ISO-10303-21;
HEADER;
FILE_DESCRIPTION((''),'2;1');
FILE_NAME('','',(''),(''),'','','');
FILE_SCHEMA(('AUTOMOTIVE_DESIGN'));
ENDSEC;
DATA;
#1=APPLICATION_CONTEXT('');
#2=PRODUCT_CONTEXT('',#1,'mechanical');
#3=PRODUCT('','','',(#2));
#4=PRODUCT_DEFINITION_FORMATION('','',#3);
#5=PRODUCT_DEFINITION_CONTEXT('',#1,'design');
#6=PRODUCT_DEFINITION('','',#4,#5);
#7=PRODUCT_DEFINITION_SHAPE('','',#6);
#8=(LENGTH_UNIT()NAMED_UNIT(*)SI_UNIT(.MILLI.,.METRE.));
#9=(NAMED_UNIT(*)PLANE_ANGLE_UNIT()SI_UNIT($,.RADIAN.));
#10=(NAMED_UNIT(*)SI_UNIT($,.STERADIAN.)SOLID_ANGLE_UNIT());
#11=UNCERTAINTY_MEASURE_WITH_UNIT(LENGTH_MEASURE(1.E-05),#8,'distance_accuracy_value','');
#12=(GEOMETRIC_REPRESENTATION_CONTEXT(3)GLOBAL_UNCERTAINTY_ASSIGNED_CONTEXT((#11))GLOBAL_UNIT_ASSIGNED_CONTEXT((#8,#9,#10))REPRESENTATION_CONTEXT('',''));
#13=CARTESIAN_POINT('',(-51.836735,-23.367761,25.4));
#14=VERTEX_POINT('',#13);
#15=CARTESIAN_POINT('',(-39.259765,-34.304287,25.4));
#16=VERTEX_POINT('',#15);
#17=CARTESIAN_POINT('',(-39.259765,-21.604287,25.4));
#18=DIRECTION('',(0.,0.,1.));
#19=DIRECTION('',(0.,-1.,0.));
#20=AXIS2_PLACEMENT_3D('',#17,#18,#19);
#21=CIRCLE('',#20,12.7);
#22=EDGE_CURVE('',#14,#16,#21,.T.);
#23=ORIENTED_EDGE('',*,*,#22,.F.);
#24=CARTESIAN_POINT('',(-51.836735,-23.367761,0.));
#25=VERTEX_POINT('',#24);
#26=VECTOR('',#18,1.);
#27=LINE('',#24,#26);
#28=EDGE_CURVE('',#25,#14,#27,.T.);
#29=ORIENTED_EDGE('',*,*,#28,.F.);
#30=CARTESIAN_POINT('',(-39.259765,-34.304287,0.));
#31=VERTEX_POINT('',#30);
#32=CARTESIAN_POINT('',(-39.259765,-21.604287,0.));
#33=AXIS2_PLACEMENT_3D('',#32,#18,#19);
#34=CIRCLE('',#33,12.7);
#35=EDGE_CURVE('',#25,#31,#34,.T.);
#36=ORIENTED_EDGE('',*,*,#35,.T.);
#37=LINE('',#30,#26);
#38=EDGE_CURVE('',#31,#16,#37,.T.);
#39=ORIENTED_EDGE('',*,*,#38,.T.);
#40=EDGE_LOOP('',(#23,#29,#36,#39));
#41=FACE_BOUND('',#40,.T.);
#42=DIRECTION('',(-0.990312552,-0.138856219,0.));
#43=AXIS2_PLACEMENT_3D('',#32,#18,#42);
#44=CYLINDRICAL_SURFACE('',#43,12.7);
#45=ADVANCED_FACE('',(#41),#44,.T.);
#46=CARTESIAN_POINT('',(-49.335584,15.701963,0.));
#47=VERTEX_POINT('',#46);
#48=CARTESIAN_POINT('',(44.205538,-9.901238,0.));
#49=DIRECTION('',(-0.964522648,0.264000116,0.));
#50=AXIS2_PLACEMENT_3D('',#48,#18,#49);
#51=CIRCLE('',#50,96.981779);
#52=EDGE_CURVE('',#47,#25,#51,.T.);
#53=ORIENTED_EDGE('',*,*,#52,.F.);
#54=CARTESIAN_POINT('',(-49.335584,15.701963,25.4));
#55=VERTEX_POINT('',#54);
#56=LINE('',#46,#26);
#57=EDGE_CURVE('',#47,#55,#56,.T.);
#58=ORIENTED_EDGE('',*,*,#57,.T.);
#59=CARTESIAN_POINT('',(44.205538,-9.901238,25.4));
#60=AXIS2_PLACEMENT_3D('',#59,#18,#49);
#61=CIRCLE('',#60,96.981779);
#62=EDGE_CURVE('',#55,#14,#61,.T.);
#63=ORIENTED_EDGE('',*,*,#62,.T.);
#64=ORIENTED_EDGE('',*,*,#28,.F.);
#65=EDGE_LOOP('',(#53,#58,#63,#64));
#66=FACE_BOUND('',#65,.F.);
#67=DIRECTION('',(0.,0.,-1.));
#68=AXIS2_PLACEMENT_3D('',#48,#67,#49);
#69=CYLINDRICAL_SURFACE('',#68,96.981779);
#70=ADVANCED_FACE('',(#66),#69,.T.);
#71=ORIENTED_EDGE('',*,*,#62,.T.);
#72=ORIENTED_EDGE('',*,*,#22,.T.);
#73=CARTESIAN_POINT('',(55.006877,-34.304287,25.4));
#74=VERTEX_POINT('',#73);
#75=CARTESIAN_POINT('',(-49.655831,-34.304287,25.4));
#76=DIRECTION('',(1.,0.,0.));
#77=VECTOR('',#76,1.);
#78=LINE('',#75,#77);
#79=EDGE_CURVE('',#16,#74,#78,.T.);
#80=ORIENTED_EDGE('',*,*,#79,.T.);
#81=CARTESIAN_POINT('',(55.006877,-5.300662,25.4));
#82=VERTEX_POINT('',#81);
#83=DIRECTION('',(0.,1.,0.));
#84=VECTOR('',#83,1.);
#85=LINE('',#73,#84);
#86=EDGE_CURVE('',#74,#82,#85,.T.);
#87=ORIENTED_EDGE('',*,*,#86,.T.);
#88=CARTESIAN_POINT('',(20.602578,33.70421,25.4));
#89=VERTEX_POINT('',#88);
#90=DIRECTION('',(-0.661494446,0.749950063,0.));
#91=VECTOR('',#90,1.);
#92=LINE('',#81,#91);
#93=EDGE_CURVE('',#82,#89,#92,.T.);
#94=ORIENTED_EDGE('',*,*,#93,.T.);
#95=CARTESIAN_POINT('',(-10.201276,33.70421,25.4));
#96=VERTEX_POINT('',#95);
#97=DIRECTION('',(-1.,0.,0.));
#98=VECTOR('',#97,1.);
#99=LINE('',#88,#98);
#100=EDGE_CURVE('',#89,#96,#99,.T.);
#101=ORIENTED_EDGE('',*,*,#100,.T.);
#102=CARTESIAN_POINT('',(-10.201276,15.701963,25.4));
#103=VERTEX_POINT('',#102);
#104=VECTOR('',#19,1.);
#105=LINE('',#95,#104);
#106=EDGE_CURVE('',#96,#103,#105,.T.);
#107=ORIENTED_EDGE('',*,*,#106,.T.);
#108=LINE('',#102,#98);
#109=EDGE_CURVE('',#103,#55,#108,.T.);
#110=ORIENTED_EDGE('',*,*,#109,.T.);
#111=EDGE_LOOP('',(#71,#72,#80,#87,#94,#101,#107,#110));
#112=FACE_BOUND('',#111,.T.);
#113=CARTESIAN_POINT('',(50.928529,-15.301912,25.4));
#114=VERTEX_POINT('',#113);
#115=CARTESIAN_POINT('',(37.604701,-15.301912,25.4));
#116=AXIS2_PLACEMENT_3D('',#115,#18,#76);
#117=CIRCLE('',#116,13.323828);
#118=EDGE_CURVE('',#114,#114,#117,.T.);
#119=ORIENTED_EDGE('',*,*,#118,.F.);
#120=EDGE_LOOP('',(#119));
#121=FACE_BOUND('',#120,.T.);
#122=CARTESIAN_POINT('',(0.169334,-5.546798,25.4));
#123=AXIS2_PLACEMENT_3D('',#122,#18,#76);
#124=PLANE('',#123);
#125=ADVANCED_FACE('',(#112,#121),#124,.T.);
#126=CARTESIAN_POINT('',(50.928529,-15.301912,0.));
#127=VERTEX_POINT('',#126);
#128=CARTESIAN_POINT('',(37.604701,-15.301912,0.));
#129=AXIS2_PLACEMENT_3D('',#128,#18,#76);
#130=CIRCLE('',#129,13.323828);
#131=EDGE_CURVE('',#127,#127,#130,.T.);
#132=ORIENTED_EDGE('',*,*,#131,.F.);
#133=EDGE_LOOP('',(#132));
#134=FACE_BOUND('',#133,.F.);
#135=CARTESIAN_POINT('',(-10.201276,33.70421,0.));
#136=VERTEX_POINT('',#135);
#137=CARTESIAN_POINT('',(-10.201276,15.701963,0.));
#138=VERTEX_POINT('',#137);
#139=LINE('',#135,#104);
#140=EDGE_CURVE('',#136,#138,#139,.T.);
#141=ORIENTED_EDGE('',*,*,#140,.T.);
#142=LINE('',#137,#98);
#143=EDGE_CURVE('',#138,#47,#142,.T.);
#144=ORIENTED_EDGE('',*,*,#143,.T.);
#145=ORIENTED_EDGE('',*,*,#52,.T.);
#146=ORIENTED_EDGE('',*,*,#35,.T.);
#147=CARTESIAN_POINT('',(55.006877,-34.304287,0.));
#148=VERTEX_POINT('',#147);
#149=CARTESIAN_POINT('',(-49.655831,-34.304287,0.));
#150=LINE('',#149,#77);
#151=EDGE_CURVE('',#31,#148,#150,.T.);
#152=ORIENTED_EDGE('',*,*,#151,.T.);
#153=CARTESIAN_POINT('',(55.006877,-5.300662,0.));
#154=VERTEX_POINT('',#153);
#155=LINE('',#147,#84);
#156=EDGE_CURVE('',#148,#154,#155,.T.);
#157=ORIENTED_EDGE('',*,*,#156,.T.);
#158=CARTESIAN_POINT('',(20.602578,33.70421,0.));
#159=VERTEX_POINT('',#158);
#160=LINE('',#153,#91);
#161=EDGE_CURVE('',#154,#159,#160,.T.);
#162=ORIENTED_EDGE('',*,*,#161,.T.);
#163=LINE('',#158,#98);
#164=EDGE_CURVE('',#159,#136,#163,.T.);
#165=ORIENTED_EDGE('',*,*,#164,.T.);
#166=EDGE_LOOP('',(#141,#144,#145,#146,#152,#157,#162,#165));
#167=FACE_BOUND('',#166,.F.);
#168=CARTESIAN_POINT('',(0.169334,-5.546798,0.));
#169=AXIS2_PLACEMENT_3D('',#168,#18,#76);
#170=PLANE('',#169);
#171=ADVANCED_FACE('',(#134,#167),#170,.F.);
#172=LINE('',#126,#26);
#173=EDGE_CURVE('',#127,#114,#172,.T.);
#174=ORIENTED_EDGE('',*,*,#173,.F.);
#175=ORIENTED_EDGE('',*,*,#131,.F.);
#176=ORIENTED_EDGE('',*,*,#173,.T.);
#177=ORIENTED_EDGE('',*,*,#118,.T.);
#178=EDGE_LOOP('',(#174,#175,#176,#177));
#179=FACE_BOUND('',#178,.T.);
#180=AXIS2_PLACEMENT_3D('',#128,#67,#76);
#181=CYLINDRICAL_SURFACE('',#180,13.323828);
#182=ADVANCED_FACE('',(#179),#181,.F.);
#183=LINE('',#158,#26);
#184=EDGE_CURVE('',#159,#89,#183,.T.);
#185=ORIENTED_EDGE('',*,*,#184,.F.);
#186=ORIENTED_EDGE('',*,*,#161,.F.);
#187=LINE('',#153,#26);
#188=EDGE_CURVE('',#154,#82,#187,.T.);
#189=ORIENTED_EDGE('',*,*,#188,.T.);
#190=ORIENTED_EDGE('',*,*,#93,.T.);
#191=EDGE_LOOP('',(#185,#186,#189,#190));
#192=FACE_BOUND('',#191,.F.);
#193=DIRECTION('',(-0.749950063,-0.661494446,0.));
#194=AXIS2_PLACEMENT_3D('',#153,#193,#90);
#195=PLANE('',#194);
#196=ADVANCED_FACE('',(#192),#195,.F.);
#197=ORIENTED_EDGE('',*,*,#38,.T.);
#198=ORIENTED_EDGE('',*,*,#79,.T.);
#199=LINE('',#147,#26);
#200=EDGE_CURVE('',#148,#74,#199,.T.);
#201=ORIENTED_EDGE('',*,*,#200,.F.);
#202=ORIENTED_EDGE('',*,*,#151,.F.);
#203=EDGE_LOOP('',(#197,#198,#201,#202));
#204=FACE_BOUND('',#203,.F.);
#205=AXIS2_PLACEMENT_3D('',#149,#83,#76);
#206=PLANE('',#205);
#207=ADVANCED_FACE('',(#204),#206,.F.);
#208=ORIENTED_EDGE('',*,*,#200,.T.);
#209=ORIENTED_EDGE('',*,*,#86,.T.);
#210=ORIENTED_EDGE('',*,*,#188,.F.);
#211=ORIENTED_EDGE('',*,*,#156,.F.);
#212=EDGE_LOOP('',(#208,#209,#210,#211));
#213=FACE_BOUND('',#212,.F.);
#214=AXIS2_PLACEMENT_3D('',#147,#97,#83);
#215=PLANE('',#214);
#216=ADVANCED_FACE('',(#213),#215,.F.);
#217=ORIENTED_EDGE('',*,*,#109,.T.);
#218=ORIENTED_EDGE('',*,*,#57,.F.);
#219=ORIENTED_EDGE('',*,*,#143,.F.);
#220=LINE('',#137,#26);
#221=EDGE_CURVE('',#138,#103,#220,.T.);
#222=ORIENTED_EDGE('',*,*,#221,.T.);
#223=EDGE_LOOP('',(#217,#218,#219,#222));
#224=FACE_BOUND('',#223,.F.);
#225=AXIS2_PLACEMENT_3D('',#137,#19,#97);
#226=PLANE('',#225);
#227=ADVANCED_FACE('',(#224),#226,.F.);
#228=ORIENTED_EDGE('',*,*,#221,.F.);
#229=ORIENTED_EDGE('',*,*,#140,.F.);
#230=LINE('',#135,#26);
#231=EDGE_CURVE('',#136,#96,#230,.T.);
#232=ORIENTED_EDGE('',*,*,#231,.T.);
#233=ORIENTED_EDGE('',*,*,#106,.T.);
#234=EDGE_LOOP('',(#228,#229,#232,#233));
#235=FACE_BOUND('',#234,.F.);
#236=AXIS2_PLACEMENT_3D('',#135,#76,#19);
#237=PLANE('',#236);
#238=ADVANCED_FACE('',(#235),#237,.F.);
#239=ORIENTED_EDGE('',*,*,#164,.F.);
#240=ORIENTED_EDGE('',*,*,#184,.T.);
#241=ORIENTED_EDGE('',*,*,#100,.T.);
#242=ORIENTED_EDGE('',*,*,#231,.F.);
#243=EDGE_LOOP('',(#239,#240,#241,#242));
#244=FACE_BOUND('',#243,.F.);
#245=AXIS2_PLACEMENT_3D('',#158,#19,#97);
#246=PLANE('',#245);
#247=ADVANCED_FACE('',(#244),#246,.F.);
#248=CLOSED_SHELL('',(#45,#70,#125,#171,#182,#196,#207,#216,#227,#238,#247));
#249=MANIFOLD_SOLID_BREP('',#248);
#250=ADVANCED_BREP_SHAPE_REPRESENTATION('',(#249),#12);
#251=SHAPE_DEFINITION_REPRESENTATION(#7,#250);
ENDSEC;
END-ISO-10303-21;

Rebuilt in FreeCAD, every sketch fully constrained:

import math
import FreeCAD as App
import Part
import Sketcher
from FreeCAD import Vector
Q = App.Units.Quantity


def edges_at(feature, points):
    """Names of the edges that pass closest to the given points."""
    edges = feature.Shape.Edges
    near = lambda p: min(range(len(edges)), key=lambda i: edges[i].distToShape(Part.Vertex(*p))[0])
    return sorted({f"Edge{near(p) + 1}" for p in points})

doc = App.newDocument("Part")
body = doc.addObject("PartDesign::Body", "Body")

sketch1 = body.newObject("Sketcher::SketchObject", "Sketch")
sketch1.AttachmentSupport = (doc.getObject("XY_Plane"), [""])
sketch1.MapMode = "FlatFace"
sketch1.addGeometry([
    Part.LineSegment(Vector(-10, 16, 0), Vector(-49, 16, 0)),
    Part.ArcOfCircle(Part.Circle(Vector(44, -10, 0), Vector(0, 0, 1), 97), math.radians(165), math.radians(195)),
    Part.LineSegment(Vector(-50, -34, 0), Vector(55, -34, 0)),
    Part.LineSegment(Vector(55, -34, 0), Vector(55, -5, 0)),
    Part.LineSegment(Vector(55, -5, 0), Vector(21, 34, 0)),
    Part.LineSegment(Vector(21, 34, 0), Vector(-10, 34, 0)),
    Part.LineSegment(Vector(-10, 34, 0), Vector(-10, 16, 0)),
    Part.Circle(Vector(38, -15, 0), Vector(0, 0, 1), 13),
], False)
sketch1.addConstraint([
    Sketcher.Constraint("Coincident", 0, 2, 1, 1),
    Sketcher.Constraint("Coincident", 1, 2, 2, 1),
    Sketcher.Constraint("Coincident", 2, 2, 3, 1),
    Sketcher.Constraint("Coincident", 3, 2, 4, 1),
    Sketcher.Constraint("Coincident", 4, 2, 5, 1),
    Sketcher.Constraint("Coincident", 5, 2, 6, 1),
    Sketcher.Constraint("Coincident", 6, 2, 0, 1),
    Sketcher.Constraint("Horizontal", 0),
    Sketcher.Constraint("Horizontal", 2),
    Sketcher.Constraint("Vertical", 3),
    Sketcher.Constraint("Horizontal", 5),
    Sketcher.Constraint("Vertical", 6),
    Sketcher.Constraint("Radius", 1, Q("96.981779 mm")),
    Sketcher.Constraint("DistanceY", 1, 3, 0, 2, Q("1.008 in")),
    Sketcher.Constraint("DistanceY", 1, 2, 0, 2, Q("1.96875 in")),
    Sketcher.Constraint("Diameter", 7, Q("26.647656 mm")),
    Sketcher.Constraint("DistanceX", -1, 1, 7, 3, Q("1.4805 in")),
    Sketcher.Constraint("DistanceX", 4, 2, 3, 2, Q("1.3545 in")),
    Sketcher.Constraint("DistanceY", 2, 2, 4, 2, Q("2.6774999 in")),
    Sketcher.Constraint("DistanceX", 2, 1, 2, 2, Q("104.662708 mm")),
    Sketcher.Constraint("Distance", 4, Q("52.009959 mm")),
    Sketcher.Constraint("DistanceX", 0, 2, 0, 1, Q("39.134308 mm")),
    Sketcher.Constraint("DistanceX", 1, 2, -1, 1, Q("49.655831 mm")),
    Sketcher.Constraint("DistanceY", -1, 1, 4, 2, Q("33.70421 mm")),
    Sketcher.Constraint("DistanceY", 7, 3, 3, 2, Q("10.00125 mm")),
])
pad1 = body.newObject("PartDesign::Pad", "Pad")
pad1.Profile = sketch1
pad1.Length = Q("1 in")
doc.recompute()

fillet = body.newObject("PartDesign::Fillet", "Fillet")
fillet.Base = (pad1, edges_at(pad1, [(-49.656, -34.304, 12.7)]))
fillet.Radius = Q("0.5 in")

doc.recompute()
